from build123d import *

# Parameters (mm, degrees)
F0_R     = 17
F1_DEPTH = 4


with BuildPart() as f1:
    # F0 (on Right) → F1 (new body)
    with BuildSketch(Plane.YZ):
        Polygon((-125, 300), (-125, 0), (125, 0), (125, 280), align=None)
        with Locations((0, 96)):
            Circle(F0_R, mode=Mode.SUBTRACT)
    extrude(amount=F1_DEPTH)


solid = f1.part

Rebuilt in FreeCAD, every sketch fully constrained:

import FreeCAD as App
import Part
import Sketcher
Q = App.Units.Quantity

doc = App.newDocument("Part")
body = doc.addObject("PartDesign::Body", "Body")

# Sketch on YZ plane
sketch1 = body.newObject("Sketcher::SketchObject", "Sketch")
sketch1.AttachmentSupport = (doc.getObject("YZ_Plane"), [""])
sketch1.MapMode = "FlatFace"
sketch1.addGeometry([
    Part.LineSegment(App.Vector(-125, 300, 0), App.Vector(-125, 0, 0)),  # 0
    Part.LineSegment(App.Vector(-125, 0, 0), App.Vector(125, 0, 0)),  # 1
    Part.LineSegment(App.Vector(125, 0, 0), App.Vector(125, 280, 0)),  # 2
    Part.LineSegment(App.Vector(125, 280, 0), App.Vector(-125, 300, 0)),  # 3
    Part.Circle(App.Vector(0, 96, 0), App.Vector(0, 0, 1), 17),  # 4
], False)
sketch1.addConstraint([
    Sketcher.Constraint("Coincident", 0, 2, 1, 1),
    Sketcher.Constraint("Coincident", 1, 2, 2, 1),
    Sketcher.Constraint("Coincident", 2, 2, 3, 1),
    Sketcher.Constraint("Coincident", 3, 2, 0, 1),
    Sketcher.Constraint("Vertical", 0),
    Sketcher.Constraint("Horizontal", 1),
    Sketcher.Constraint("Vertical", 2),
    Sketcher.Constraint("Symmetric", 0, 2, 1, 2, -1, 1),
    Sketcher.Constraint("PointOnObject", 4, 3, -2),
    Sketcher.Constraint("Diameter", 4, Q("34 mm")),
    Sketcher.Constraint("DistanceX", 1, 1, 1, 2, Q("250 mm")),
    Sketcher.Constraint("DistanceY", 0, 2, 0, 1, Q("300 mm")),
    Sketcher.Constraint("DistanceY", 2, 1, 2, 2, Q("280 mm")),
    Sketcher.Constraint("DistanceY", -1, 1, 4, 3, Q("96 mm")),
])
pad1 = body.newObject("PartDesign::Pad", "Pad")
pad1.Profile = sketch1
pad1.Length = 4

doc.recompute()
